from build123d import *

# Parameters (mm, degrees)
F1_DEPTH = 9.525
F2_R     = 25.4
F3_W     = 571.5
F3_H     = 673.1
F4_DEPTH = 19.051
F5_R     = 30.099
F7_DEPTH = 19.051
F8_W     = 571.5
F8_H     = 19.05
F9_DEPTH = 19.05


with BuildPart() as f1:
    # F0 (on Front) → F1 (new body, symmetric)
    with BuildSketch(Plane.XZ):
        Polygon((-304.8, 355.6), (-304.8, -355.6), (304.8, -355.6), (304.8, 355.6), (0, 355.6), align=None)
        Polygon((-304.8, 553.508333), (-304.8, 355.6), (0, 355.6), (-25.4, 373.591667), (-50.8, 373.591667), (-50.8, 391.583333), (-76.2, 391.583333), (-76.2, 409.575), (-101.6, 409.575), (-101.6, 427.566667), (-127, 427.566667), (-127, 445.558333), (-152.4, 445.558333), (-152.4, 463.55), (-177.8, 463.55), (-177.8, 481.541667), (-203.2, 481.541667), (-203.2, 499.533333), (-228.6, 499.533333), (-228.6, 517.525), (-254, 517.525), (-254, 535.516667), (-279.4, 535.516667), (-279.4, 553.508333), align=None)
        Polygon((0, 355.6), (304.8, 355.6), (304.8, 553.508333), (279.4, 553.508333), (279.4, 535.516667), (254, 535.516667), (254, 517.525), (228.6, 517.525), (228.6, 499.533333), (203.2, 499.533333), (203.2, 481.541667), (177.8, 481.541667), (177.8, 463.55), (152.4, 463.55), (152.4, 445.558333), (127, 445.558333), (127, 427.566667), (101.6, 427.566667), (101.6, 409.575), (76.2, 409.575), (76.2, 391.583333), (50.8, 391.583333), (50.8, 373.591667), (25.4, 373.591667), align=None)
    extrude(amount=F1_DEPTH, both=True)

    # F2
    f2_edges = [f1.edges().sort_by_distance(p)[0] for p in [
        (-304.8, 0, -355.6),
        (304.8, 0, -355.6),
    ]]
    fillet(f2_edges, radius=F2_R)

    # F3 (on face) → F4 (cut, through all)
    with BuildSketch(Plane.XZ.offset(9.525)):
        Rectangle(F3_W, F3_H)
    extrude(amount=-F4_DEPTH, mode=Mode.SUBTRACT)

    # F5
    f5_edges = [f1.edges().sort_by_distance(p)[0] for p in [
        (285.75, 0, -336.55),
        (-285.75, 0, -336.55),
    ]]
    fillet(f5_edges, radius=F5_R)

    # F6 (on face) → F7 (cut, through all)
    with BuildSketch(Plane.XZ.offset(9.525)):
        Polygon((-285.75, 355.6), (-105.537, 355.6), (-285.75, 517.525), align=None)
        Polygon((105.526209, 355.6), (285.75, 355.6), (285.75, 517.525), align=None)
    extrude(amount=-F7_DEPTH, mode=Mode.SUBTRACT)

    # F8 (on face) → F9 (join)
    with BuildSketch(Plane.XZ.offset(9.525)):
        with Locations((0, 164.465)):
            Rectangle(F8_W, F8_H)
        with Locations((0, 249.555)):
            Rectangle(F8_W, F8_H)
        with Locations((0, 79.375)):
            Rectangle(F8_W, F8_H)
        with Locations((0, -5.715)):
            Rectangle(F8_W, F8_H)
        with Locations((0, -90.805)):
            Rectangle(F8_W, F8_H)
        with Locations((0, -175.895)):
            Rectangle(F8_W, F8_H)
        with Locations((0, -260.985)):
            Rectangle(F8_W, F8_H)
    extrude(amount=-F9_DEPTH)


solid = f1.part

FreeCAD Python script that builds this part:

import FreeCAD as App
import Part
import Sketcher
Q = App.Units.Quantity


def edges_at(feature, points):
    """Names of the edges that pass closest to the given points."""
    edges = feature.Shape.Edges
    near = lambda p: min(range(len(edges)), key=lambda i: edges[i].distToShape(Part.Vertex(*p))[0])
    return sorted({f"Edge{near(p) + 1}" for p in points})


def add_polygon(sketch, points):
    """Adds a closed chain of lines whose ends are joined by coincident constraints."""
    first, n = sketch.GeometryCount, len(points)
    for a, b in zip(points, points[1:] + points[:1]):
        sketch.addGeometry(Part.LineSegment(App.Vector(*a, 0), App.Vector(*b, 0)), False)
    for i in range(n):
        sketch.addConstraint(Sketcher.Constraint("Coincident", first + i, 2, first + (i + 1) % n, 1))

doc = App.newDocument("Part")
body = doc.addObject("PartDesign::Body", "Body")

# Sketch on XZ plane
sketch1 = doc.addObject("Sketcher::SketchObject", "Sketch")
body.addObject(sketch1)
sketch1.AttachmentSupport = (doc.XZ_Plane, [""])
sketch1.MapMode = "FlatFace"
add_polygon(sketch1, [(-304.8, -355.6), (304.8, -355.6), (304.8, 553.508333), (279.4, 553.508333), (279.4, 535.516667), (254, 535.516667), (254, 517.525), (228.6, 517.525), (228.6, 499.533333), (203.2, 499.533333), (203.2, 481.541667), (177.8, 481.541667), (177.8, 463.55), (152.4, 463.55), (152.4, 445.558333), (127, 445.558333), (127, 427.566667), (101.6, 427.566667), (101.6, 409.575), (76.2, 409.575), (76.2, 391.583333), (50.8, 391.583333), (50.8, 373.591667), (25.4, 373.591667), (0, 355.6), (-25.4, 373.591667), (-50.8, 373.591667), (-50.8, 391.583333), (-76.2, 391.583333), (-76.2, 409.575), (-101.6, 409.575), (-101.6, 427.566667), (-127, 427.566667), (-127, 445.558333), (-152.4, 445.558333), (-152.4, 463.55), (-177.8, 463.55), (-177.8, 481.541667), (-203.2, 481.541667), (-203.2, 499.533333), (-228.6, 499.533333), (-228.6, 517.525), (-254, 517.525), (-254, 535.516667), (-279.4, 535.516667), (-279.4, 553.508333), (-304.8, 553.508333)])  # lines 0-46
sketch1.addConstraint(Sketcher.Constraint("Horizontal", 0))
sketch1.addConstraint(Sketcher.Constraint("Vertical", 1))
sketch1.addConstraint(Sketcher.Constraint("Horizontal", 2))
sketch1.addConstraint(Sketcher.Constraint("Vertical", 3))
sketch1.addConstraint(Sketcher.Constraint("Horizontal", 4))
sketch1.addConstraint(Sketcher.Constraint("Vertical", 5))
sketch1.addConstraint(Sketcher.Constraint("Horizontal", 6))
sketch1.addConstraint(Sketcher.Constraint("Vertical", 7))
sketch1.addConstraint(Sketcher.Constraint("Horizontal", 8))
sketch1.addConstraint(Sketcher.Constraint("Vertical", 9))
sketch1.addConstraint(Sketcher.Constraint("Horizontal", 10))
sketch1.addConstraint(Sketcher.Constraint("Vertical", 11))
sketch1.addConstraint(Sketcher.Constraint("Horizontal", 12))
sketch1.addConstraint(Sketcher.Constraint("Vertical", 13))
sketch1.addConstraint(Sketcher.Constraint("Horizontal", 14))
sketch1.addConstraint(Sketcher.Constraint("Vertical", 15))
sketch1.addConstraint(Sketcher.Constraint("Horizontal", 16))
sketch1.addConstraint(Sketcher.Constraint("Vertical", 17))
sketch1.addConstraint(Sketcher.Constraint("Horizontal", 18))
sketch1.addConstraint(Sketcher.Constraint("Vertical", 19))
sketch1.addConstraint(Sketcher.Constraint("Horizontal", 20))
sketch1.addConstraint(Sketcher.Constraint("Vertical", 21))
sketch1.addConstraint(Sketcher.Constraint("Horizontal", 22))
sketch1.addConstraint(Sketcher.Constraint("Horizontal", 25))
sketch1.addConstraint(Sketcher.Constraint("Vertical", 26))
sketch1.addConstraint(Sketcher.Constraint("Horizontal", 27))
sketch1.addConstraint(Sketcher.Constraint("Vertical", 28))
sketch1.addConstraint(Sketcher.Constraint("Horizontal", 29))
sketch1.addConstraint(Sketcher.Constraint("Vertical", 30))
sketch1.addConstraint(Sketcher.Constraint("Horizontal", 31))
sketch1.addConstraint(Sketcher.Constraint("Vertical", 32))
sketch1.addConstraint(Sketcher.Constraint("Horizontal", 33))
sketch1.addConstraint(Sketcher.Constraint("Vertical", 34))
sketch1.addConstraint(Sketcher.Constraint("Horizontal", 35))
sketch1.addConstraint(Sketcher.Constraint("Vertical", 36))
sketch1.addConstraint(Sketcher.Constraint("Horizontal", 37))
sketch1.addConstraint(Sketcher.Constraint("Vertical", 38))
sketch1.addConstraint(Sketcher.Constraint("Horizontal", 39))
sketch1.addConstraint(Sketcher.Constraint("Vertical", 40))
sketch1.addConstraint(Sketcher.Constraint("Horizontal", 41))
sketch1.addConstraint(Sketcher.Constraint("Vertical", 42))
sketch1.addConstraint(Sketcher.Constraint("Horizontal", 43))
sketch1.addConstraint(Sketcher.Constraint("Vertical", 44))
sketch1.addConstraint(Sketcher.Constraint("Horizontal", 45))
sketch1.addConstraint(Sketcher.Constraint("Vertical", 46))
sketch1.addConstraint(Sketcher.Constraint("Symmetric", 22, 2, 24, 2, -2))
sketch1.addConstraint(Sketcher.Constraint("Symmetric", 20, 2, 26, 2, -2))
sketch1.addConstraint(Sketcher.Constraint("Symmetric", 18, 2, 28, 2, -2))
sketch1.addConstraint(Sketcher.Constraint("Symmetric", 16, 2, 30, 2, -2))
sketch1.addConstraint(Sketcher.Constraint("Symmetric", 14, 2, 32, 2, -2))
sketch1.addConstraint(Sketcher.Constraint("Symmetric", 12, 2, 34, 2, -2))
sketch1.addConstraint(Sketcher.Constraint("Symmetric", 10, 2, 36, 2, -2))
sketch1.addConstraint(Sketcher.Constraint("Symmetric", 8, 2, 38, 2, -2))
sketch1.addConstraint(Sketcher.Constraint("Symmetric", 6, 2, 40, 2, -2))
sketch1.addConstraint(Sketcher.Constraint("Symmetric", 4, 2, 42, 2, -2))
sketch1.addConstraint(Sketcher.Constraint("Symmetric", 2, 2, 44, 2, -2))
sketch1.addConstraint(Sketcher.Constraint("PointOnObject", 23, 2, -2))
sketch1.addConstraint(Sketcher.Constraint("Equal", 2, 4))
sketch1.addConstraint(Sketcher.Constraint("Equal", 4, 6))
sketch1.addConstraint(Sketcher.Constraint("Equal", 6, 8))
sketch1.addConstraint(Sketcher.Constraint("Equal", 8, 10))
sketch1.addConstraint(Sketcher.Constraint("Equal", 10, 12))
sketch1.addConstraint(Sketcher.Constraint("Equal", 12, 14))
sketch1.addConstraint(Sketcher.Constraint("Equal", 14, 16))
sketch1.addConstraint(Sketcher.Constraint("Equal", 16, 18))
sketch1.addConstraint(Sketcher.Constraint("Equal", 18, 20))
sketch1.addConstraint(Sketcher.Constraint("Equal", 20, 22))
sketch1.addConstraint(Sketcher.Constraint("Equal", 43, 45))
sketch1.addConstraint(Sketcher.Constraint("Equal", 3, 5))
sketch1.addConstraint(Sketcher.Constraint("Equal", 5, 7))
sketch1.addConstraint(Sketcher.Constraint("Equal", 7, 9))
sketch1.addConstraint(Sketcher.Constraint("Equal", 9, 11))
sketch1.addConstraint(Sketcher.Constraint("Equal", 11, 13))
sketch1.addConstraint(Sketcher.Constraint("Equal", 13, 15))
sketch1.addConstraint(Sketcher.Constraint("Equal", 15, 17))
sketch1.addConstraint(Sketcher.Constraint("Equal", 17, 19))
sketch1.addConstraint(Sketcher.Constraint("Equal", 19, 21))
sketch1.addConstraint(Sketcher.Constraint("DistanceX", 0, 1, 0, 2, Q("24 in")))
sketch1.addConstraint(Sketcher.Constraint("DistanceX", 2, 2, 2, 1, Q("1 in")))
sketch1.addConstraint(Sketcher.Constraint("DistanceY", 0, 2, -1, 1, Q("14 in")))
sketch1.addConstraint(Sketcher.Constraint("DistanceY", -1, 1, 23, 2, Q("14 in")))
sketch1.addConstraint(Sketcher.Constraint("DistanceY", -1, 1, 11, 2, Q("18.25 in")))
sketch1.addConstraint(Sketcher.Constraint("DistanceY", -1, 1, 5, 2, Q("20.375 in")))
pad1 = doc.addObject("PartDesign::Pad", "Pad")
body.addObject(pad1)
pad1.Profile = sketch1
pad1.Length = Q("0.75 in")
pad1.Midplane = True
doc.recompute()

fillet = doc.addObject("PartDesign::Fillet", "Fillet")
body.addObject(fillet)
fillet.Base = (pad1, edges_at(pad1, [(-304.8, 0, -355.6), (304.8, 0, -355.6)]))
fillet.Radius = Q("1 in")

# Sketch on XZ plane
sketch2 = doc.addObject("Sketcher::SketchObject", "Sketch001")
body.addObject(sketch2)
sketch2.AttachmentSupport = (doc.XZ_Plane, [""])
sketch2.MapMode = "FlatFace"
sketch2.AttachmentOffset = App.Placement(App.Vector(0, 0, 0.375 * 25.4), App.Rotation())
add_polygon(sketch2, [(-285.75, 336.55), (-285.75, -336.55), (285.75, -336.55), (285.75, 336.55)])  # lines 0-3
sketch2.addConstraint(Sketcher.Constraint("Vertical", 0))
sketch2.addConstraint(Sketcher.Constraint("Horizontal", 1))
sketch2.addConstraint(Sketcher.Constraint("Vertical", 2))
sketch2.addConstraint(Sketcher.Constraint("Horizontal", 3))
sketch2.addConstraint(Sketcher.Constraint("Symmetric", 0, 2, 2, 2, -1, 1))
sketch2.addConstraint(Sketcher.Constraint("DistanceX", 1, 1, 1, 2, Q("22.5 in")))
sketch2.addConstraint(Sketcher.Constraint("DistanceY", 0, 2, 0, 1, Q("26.5 in")))
pocket1 = doc.addObject("PartDesign::Pocket", "Pocket")
body.addObject(pocket1)
pocket1.Profile = sketch2
pocket1.Type = "ThroughAll"
doc.recompute()

fillet2 = doc.addObject("PartDesign::Fillet", "Fillet001")
body.addObject(fillet2)
fillet2.Base = (pocket1, edges_at(pocket1, [(285.75, 0, -336.55), (-285.75, 0, -336.55)]))
fillet2.Radius = Q("1.185 in")

# Sketch on XZ plane
sketch3 = doc.addObject("Sketcher::SketchObject", "Sketch002")
body.addObject(sketch3)
sketch3.AttachmentSupport = (doc.XZ_Plane, [""])
sketch3.MapMode = "FlatFace"
sketch3.AttachmentOffset = App.Placement(App.Vector(0, 0, 0.375 * 25.4), App.Rotation())
add_polygon(sketch3, [(-285.75, 355.6), (-105.537, 355.6), (-285.75, 517.525)])  # lines 0-2
add_polygon(sketch3, [(105.526209, 355.6), (285.75, 355.6), (285.75, 517.525)])  # lines 3-5
sketch3.addConstraint(Sketcher.Constraint("Horizontal", 0))
sketch3.addConstraint(Sketcher.Constraint("Vertical", 2))
sketch3.addConstraint(Sketcher.Constraint("Horizontal", 3))
sketch3.addConstraint(Sketcher.Constraint("Vertical", 4))
sketch3.addConstraint(Sketcher.Constraint("Symmetric", 2, 2, 3, 2, -2))
sketch3.addConstraint(Sketcher.Constraint("Horizontal", 1, 2, 4, 2))
sketch3.addConstraint(Sketcher.Constraint("DistanceY", -1, 1, 0, 2, Q("14 in")))
sketch3.addConstraint(Sketcher.Constraint("DistanceX", 2, 2, 3, 2, Q("22.5 in")))
sketch3.addConstraint(Sketcher.Constraint("DistanceX", 0, 1, 0, 2, Q("7.095 in")))
sketch3.addConstraint(Sketcher.Constraint("DistanceY", 2, 2, 2, 1, Q("6.375 in")))
sketch3.addConstraint(Sketcher.Constraint("DistanceX", 3, 1, 3, 2, Q("180.223791 mm")))
pocket2 = doc.addObject("PartDesign::Pocket", "Pocket001")
body.addObject(pocket2)
pocket2.Profile = sketch3
pocket2.Type = "ThroughAll"

# Sketch on XZ plane
sketch4 = doc.addObject("Sketcher::SketchObject", "Sketch003")
body.addObject(sketch4)
sketch4.AttachmentSupport = (doc.XZ_Plane, [""])
sketch4.MapMode = "FlatFace"
sketch4.AttachmentOffset = App.Placement(App.Vector(0, 0, 0.375 * 25.4), App.Rotation())
add_polygon(sketch4, [(-285.75, 173.99), (-285.75, 154.94), (285.75, 154.94), (285.75, 173.99)])  # lines 0-3
add_polygon(sketch4, [(-285.75, 259.08), (-285.75, 240.03), (285.75, 240.03), (285.75, 259.08)])  # lines 4-7
add_polygon(sketch4, [(-285.75, 88.9), (-285.75, 69.85), (285.75, 69.85), (285.75, 88.9)])  # lines 8-11
add_polygon(sketch4, [(-285.75, 3.81), (-285.75, -15.24), (285.75, -15.24), (285.75, 3.81)])  # lines 12-15
add_polygon(sketch4, [(-285.75, -81.28), (-285.75, -100.33), (285.75, -100.33), (285.75, -81.28)])  # lines 16-19
add_polygon(sketch4, [(-285.75, -166.37), (-285.75, -185.42), (285.75, -185.42), (285.75, -166.37)])  # lines 20-23
add_polygon(sketch4, [(-285.75, -251.46), (-285.75, -270.51), (285.75, -270.51), (285.75, -251.46)])  # lines 24-27
sketch4.addConstraint(Sketcher.Constraint("Vertical", 0))
sketch4.addConstraint(Sketcher.Constraint("Horizontal", 1))
sketch4.addConstraint(Sketcher.Constraint("Vertical", 2))
sketch4.addConstraint(Sketcher.Constraint("Horizontal", 3))
sketch4.addConstraint(Sketcher.Constraint("Vertical", 4))
sketch4.addConstraint(Sketcher.Constraint("Horizontal", 5))
sketch4.addConstraint(Sketcher.Constraint("Vertical", 6))
sketch4.addConstraint(Sketcher.Constraint("Horizontal", 7))
sketch4.addConstraint(Sketcher.Constraint("Vertical", 8))
sketch4.addConstraint(Sketcher.Constraint("Horizontal", 9))
sketch4.addConstraint(Sketcher.Constraint("Vertical", 10))
sketch4.addConstraint(Sketcher.Constraint("Horizontal", 11))
sketch4.addConstraint(Sketcher.Constraint("Vertical", 12))
sketch4.addConstraint(Sketcher.Constraint("Horizontal", 13))
sketch4.addConstraint(Sketcher.Constraint("Vertical", 14))
sketch4.addConstraint(Sketcher.Constraint("Horizontal", 15))
sketch4.addConstraint(Sketcher.Constraint("Vertical", 16))
sketch4.addConstraint(Sketcher.Constraint("Horizontal", 17))
sketch4.addConstraint(Sketcher.Constraint("Vertical", 18))
sketch4.addConstraint(Sketcher.Constraint("Horizontal", 19))
sketch4.addConstraint(Sketcher.Constraint("Vertical", 20))
sketch4.addConstraint(Sketcher.Constraint("Horizontal", 21))
sketch4.addConstraint(Sketcher.Constraint("Vertical", 22))
sketch4.addConstraint(Sketcher.Constraint("Horizontal", 23))
sketch4.addConstraint(Sketcher.Constraint("Vertical", 24))
sketch4.addConstraint(Sketcher.Constraint("Horizontal", 25))
sketch4.addConstraint(Sketcher.Constraint("Vertical", 26))
sketch4.addConstraint(Sketcher.Constraint("Horizontal", 27))
sketch4.addConstraint(Sketcher.Constraint("Vertical", 3, 2, 4, 2))
sketch4.addConstraint(Sketcher.Constraint("Vertical", 2, 2, 5, 2))
sketch4.addConstraint(Sketcher.Constraint("Vertical", 7, 2, 8, 2))
sketch4.addConstraint(Sketcher.Constraint("Vertical", 6, 2, 9, 2))
sketch4.addConstraint(Sketcher.Constraint("Vertical", 11, 2, 12, 2))
sketch4.addConstraint(Sketcher.Constraint("Vertical", 10, 2, 13, 2))
sketch4.addConstraint(Sketcher.Constraint("Vertical", 15, 2, 16, 2))
sketch4.addConstraint(Sketcher.Constraint("Vertical", 14, 2, 17, 2))
sketch4.addConstraint(Sketcher.Constraint("Vertical", 19, 2, 20, 2))
sketch4.addConstraint(Sketcher.Constraint("Vertical", 18, 2, 21, 2))
sketch4.addConstraint(Sketcher.Constraint("Vertical", 23, 2, 24, 2))
sketch4.addConstraint(Sketcher.Constraint("Vertical", 22, 2, 25, 2))
sketch4.addConstraint(Sketcher.Constraint("Equal", 2, 4))
sketch4.addConstraint(Sketcher.Constraint("Equal", 6, 8))
sketch4.addConstraint(Sketcher.Constraint("Equal", 10, 12))
sketch4.addConstraint(Sketcher.Constraint("Equal", 14, 16))
sketch4.addConstraint(Sketcher.Constraint("Equal", 18, 20))
sketch4.addConstraint(Sketcher.Constraint("Equal", 22, 24))
sketch4.addConstraint(Sketcher.Constraint("DistanceX", 1, 1, 1, 2, Q("22.5 in")))
sketch4.addConstraint(Sketcher.Constraint("DistanceY", 0, 2, 0, 1, Q("0.75 in")))
sketch4.addConstraint(Sketcher.Constraint("DistanceY", -1, 1, 0, 2, Q("6.1 in")))
sketch4.addConstraint(Sketcher.Constraint("DistanceY", -1, 1, 6, 2, Q("10.2 in")))
sketch4.addConstraint(Sketcher.Constraint("DistanceY", -1, 1, 10, 2, Q("3.5 in")))
sketch4.addConstraint(Sketcher.Constraint("DistanceY", 12, 2, -1, 1, Q("0.6 in")))
sketch4.addConstraint(Sketcher.Constraint("DistanceY", 18, 2, -1, 1, Q("3.2 in")))
sketch4.addConstraint(Sketcher.Constraint("DistanceY", 20, 2, -1, 1, Q("7.3 in")))
sketch4.addConstraint(Sketcher.Constraint("DistanceY", 26, 2, -1, 1, Q("9.9 in")))
sketch4.addConstraint(Sketcher.Constraint("DistanceX", 0, 2, -1, 1, Q("11.25 in")))
pad2 = doc.addObject("PartDesign::Pad", "Pad001")
body.addObject(pad2)
pad2.Profile = sketch4
pad2.Length = Q("0.75 in")
pad2.Reversed = True

doc.recompute()
